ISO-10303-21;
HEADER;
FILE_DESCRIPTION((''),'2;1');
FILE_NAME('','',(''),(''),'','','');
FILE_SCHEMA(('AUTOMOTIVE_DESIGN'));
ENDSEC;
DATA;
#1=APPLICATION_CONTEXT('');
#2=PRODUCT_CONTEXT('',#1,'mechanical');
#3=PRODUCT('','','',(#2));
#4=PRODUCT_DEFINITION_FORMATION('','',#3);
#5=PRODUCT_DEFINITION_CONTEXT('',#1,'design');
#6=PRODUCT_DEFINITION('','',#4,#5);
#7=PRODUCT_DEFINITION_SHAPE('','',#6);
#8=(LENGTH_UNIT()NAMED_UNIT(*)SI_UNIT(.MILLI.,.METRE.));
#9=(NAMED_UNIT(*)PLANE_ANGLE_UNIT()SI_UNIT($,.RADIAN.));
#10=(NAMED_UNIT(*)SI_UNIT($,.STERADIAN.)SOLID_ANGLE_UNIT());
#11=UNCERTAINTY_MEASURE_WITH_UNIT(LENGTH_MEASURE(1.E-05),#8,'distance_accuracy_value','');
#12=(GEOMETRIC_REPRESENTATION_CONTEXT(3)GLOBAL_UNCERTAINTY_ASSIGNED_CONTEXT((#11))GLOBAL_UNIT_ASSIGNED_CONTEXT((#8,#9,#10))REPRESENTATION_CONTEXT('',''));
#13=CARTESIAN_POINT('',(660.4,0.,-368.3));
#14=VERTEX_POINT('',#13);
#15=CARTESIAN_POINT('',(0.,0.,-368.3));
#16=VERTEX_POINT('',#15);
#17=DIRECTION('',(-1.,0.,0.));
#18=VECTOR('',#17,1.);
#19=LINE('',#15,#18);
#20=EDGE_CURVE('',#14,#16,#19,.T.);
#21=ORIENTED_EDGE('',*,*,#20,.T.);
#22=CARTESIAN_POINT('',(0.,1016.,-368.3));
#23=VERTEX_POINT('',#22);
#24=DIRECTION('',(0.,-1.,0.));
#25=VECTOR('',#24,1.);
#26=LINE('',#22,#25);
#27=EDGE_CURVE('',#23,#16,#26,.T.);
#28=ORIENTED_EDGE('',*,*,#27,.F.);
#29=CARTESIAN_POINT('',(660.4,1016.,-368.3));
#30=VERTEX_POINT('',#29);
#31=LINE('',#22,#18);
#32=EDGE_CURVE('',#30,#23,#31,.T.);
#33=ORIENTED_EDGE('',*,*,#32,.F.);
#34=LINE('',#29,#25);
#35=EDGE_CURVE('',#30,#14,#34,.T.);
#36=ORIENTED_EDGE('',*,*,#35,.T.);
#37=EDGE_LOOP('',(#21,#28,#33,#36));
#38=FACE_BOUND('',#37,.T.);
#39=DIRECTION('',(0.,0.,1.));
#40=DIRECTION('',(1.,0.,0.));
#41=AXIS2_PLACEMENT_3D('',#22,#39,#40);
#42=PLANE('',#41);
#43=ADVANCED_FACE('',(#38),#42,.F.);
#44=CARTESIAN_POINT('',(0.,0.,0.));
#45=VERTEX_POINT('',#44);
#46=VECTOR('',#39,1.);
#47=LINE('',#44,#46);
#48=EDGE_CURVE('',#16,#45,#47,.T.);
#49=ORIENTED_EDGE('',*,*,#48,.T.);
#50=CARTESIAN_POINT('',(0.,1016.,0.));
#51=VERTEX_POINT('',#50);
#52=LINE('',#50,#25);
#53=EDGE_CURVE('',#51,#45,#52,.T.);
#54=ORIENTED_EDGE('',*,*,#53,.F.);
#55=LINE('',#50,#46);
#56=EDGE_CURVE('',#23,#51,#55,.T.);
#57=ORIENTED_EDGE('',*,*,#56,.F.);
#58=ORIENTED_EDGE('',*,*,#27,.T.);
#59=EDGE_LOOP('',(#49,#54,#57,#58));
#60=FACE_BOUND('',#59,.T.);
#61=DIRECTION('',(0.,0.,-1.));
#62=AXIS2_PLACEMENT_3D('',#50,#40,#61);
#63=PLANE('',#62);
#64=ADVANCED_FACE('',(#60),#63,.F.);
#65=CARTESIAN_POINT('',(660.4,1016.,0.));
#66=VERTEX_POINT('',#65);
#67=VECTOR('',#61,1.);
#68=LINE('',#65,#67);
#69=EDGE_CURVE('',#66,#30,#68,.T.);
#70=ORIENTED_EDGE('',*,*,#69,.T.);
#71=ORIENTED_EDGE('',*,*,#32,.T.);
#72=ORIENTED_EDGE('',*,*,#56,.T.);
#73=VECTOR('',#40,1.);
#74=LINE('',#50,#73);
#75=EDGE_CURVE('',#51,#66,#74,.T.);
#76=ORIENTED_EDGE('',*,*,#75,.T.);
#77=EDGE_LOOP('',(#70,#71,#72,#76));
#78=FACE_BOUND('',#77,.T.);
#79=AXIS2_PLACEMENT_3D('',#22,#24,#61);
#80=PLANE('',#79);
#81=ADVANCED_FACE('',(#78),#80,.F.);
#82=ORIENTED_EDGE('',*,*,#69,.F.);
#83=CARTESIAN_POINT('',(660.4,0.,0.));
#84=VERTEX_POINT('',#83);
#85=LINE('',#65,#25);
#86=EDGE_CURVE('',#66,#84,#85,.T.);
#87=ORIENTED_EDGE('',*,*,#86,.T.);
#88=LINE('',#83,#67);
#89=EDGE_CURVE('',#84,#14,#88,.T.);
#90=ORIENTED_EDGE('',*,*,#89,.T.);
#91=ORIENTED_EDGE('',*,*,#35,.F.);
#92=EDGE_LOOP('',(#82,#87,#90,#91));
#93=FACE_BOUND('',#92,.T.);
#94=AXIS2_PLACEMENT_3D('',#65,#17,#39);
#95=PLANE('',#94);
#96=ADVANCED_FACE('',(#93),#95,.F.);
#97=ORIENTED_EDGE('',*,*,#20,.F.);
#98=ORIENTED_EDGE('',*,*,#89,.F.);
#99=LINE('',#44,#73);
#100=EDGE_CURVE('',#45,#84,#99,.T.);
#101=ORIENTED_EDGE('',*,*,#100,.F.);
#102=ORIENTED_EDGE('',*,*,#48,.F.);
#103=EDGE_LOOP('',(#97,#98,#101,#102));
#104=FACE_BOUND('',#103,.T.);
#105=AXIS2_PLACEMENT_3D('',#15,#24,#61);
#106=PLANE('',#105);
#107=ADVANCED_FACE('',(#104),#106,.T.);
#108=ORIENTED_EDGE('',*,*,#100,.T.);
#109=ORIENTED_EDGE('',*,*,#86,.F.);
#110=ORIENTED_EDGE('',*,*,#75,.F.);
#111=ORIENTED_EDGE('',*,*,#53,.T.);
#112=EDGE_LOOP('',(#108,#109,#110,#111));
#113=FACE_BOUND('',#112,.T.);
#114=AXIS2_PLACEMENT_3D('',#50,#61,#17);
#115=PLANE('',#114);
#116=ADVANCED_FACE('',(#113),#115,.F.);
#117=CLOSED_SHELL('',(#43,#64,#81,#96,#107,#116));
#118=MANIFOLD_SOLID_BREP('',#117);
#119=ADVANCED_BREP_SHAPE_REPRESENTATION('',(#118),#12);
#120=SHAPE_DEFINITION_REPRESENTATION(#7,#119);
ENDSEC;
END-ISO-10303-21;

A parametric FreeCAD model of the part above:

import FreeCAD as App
import Part
import Sketcher

V = App.Vector
Q = App.Units.Quantity

doc = App.newDocument("Part")
body = doc.addObject("PartDesign::Body", "Body")

# Sketch on XZ plane
sketch1 = body.newObject("Sketcher::SketchObject", "Sketch")
sketch1.AttachmentSupport = (doc.getObject("XZ_Plane"), [""])
sketch1.MapMode = "FlatFace"
sketch1.addGeometry([
    Part.LineSegment(V(0, -368, 0), V(0, 0, 0)),
    Part.LineSegment(V(0, 0, 0), V(660, 0, 0)),
    Part.LineSegment(V(660, 0, 0), V(660, -368, 0)),
    Part.LineSegment(V(660, -368, 0), V(0, -368, 0)),
], False)
sketch1.addConstraint([
    Sketcher.Constraint("Coincident", 0, 2, 1, 1),
    Sketcher.Constraint("Coincident", 1, 2, 2, 1),
    Sketcher.Constraint("Coincident", 2, 2, 3, 1),
    Sketcher.Constraint("Coincident", 3, 2, 0, 1),
    Sketcher.Constraint("Vertical", 0),
    Sketcher.Constraint("Horizontal", 1),
    Sketcher.Constraint("Vertical", 2),
    Sketcher.Constraint("Horizontal", 3),
    Sketcher.Constraint("Coincident", 0, 2, -1, 1),
    Sketcher.Constraint("DistanceX", 1, 1, 1, 2, Q("26 in")),
    Sketcher.Constraint("DistanceY", 0, 1, 0, 2, Q("14.5 in")),
])
pad1 = body.newObject("PartDesign::Pad", "Pad")
pad1.Profile = sketch1
pad1.Length = Q("40 in")
pad1.Reversed = True

doc.recompute()
